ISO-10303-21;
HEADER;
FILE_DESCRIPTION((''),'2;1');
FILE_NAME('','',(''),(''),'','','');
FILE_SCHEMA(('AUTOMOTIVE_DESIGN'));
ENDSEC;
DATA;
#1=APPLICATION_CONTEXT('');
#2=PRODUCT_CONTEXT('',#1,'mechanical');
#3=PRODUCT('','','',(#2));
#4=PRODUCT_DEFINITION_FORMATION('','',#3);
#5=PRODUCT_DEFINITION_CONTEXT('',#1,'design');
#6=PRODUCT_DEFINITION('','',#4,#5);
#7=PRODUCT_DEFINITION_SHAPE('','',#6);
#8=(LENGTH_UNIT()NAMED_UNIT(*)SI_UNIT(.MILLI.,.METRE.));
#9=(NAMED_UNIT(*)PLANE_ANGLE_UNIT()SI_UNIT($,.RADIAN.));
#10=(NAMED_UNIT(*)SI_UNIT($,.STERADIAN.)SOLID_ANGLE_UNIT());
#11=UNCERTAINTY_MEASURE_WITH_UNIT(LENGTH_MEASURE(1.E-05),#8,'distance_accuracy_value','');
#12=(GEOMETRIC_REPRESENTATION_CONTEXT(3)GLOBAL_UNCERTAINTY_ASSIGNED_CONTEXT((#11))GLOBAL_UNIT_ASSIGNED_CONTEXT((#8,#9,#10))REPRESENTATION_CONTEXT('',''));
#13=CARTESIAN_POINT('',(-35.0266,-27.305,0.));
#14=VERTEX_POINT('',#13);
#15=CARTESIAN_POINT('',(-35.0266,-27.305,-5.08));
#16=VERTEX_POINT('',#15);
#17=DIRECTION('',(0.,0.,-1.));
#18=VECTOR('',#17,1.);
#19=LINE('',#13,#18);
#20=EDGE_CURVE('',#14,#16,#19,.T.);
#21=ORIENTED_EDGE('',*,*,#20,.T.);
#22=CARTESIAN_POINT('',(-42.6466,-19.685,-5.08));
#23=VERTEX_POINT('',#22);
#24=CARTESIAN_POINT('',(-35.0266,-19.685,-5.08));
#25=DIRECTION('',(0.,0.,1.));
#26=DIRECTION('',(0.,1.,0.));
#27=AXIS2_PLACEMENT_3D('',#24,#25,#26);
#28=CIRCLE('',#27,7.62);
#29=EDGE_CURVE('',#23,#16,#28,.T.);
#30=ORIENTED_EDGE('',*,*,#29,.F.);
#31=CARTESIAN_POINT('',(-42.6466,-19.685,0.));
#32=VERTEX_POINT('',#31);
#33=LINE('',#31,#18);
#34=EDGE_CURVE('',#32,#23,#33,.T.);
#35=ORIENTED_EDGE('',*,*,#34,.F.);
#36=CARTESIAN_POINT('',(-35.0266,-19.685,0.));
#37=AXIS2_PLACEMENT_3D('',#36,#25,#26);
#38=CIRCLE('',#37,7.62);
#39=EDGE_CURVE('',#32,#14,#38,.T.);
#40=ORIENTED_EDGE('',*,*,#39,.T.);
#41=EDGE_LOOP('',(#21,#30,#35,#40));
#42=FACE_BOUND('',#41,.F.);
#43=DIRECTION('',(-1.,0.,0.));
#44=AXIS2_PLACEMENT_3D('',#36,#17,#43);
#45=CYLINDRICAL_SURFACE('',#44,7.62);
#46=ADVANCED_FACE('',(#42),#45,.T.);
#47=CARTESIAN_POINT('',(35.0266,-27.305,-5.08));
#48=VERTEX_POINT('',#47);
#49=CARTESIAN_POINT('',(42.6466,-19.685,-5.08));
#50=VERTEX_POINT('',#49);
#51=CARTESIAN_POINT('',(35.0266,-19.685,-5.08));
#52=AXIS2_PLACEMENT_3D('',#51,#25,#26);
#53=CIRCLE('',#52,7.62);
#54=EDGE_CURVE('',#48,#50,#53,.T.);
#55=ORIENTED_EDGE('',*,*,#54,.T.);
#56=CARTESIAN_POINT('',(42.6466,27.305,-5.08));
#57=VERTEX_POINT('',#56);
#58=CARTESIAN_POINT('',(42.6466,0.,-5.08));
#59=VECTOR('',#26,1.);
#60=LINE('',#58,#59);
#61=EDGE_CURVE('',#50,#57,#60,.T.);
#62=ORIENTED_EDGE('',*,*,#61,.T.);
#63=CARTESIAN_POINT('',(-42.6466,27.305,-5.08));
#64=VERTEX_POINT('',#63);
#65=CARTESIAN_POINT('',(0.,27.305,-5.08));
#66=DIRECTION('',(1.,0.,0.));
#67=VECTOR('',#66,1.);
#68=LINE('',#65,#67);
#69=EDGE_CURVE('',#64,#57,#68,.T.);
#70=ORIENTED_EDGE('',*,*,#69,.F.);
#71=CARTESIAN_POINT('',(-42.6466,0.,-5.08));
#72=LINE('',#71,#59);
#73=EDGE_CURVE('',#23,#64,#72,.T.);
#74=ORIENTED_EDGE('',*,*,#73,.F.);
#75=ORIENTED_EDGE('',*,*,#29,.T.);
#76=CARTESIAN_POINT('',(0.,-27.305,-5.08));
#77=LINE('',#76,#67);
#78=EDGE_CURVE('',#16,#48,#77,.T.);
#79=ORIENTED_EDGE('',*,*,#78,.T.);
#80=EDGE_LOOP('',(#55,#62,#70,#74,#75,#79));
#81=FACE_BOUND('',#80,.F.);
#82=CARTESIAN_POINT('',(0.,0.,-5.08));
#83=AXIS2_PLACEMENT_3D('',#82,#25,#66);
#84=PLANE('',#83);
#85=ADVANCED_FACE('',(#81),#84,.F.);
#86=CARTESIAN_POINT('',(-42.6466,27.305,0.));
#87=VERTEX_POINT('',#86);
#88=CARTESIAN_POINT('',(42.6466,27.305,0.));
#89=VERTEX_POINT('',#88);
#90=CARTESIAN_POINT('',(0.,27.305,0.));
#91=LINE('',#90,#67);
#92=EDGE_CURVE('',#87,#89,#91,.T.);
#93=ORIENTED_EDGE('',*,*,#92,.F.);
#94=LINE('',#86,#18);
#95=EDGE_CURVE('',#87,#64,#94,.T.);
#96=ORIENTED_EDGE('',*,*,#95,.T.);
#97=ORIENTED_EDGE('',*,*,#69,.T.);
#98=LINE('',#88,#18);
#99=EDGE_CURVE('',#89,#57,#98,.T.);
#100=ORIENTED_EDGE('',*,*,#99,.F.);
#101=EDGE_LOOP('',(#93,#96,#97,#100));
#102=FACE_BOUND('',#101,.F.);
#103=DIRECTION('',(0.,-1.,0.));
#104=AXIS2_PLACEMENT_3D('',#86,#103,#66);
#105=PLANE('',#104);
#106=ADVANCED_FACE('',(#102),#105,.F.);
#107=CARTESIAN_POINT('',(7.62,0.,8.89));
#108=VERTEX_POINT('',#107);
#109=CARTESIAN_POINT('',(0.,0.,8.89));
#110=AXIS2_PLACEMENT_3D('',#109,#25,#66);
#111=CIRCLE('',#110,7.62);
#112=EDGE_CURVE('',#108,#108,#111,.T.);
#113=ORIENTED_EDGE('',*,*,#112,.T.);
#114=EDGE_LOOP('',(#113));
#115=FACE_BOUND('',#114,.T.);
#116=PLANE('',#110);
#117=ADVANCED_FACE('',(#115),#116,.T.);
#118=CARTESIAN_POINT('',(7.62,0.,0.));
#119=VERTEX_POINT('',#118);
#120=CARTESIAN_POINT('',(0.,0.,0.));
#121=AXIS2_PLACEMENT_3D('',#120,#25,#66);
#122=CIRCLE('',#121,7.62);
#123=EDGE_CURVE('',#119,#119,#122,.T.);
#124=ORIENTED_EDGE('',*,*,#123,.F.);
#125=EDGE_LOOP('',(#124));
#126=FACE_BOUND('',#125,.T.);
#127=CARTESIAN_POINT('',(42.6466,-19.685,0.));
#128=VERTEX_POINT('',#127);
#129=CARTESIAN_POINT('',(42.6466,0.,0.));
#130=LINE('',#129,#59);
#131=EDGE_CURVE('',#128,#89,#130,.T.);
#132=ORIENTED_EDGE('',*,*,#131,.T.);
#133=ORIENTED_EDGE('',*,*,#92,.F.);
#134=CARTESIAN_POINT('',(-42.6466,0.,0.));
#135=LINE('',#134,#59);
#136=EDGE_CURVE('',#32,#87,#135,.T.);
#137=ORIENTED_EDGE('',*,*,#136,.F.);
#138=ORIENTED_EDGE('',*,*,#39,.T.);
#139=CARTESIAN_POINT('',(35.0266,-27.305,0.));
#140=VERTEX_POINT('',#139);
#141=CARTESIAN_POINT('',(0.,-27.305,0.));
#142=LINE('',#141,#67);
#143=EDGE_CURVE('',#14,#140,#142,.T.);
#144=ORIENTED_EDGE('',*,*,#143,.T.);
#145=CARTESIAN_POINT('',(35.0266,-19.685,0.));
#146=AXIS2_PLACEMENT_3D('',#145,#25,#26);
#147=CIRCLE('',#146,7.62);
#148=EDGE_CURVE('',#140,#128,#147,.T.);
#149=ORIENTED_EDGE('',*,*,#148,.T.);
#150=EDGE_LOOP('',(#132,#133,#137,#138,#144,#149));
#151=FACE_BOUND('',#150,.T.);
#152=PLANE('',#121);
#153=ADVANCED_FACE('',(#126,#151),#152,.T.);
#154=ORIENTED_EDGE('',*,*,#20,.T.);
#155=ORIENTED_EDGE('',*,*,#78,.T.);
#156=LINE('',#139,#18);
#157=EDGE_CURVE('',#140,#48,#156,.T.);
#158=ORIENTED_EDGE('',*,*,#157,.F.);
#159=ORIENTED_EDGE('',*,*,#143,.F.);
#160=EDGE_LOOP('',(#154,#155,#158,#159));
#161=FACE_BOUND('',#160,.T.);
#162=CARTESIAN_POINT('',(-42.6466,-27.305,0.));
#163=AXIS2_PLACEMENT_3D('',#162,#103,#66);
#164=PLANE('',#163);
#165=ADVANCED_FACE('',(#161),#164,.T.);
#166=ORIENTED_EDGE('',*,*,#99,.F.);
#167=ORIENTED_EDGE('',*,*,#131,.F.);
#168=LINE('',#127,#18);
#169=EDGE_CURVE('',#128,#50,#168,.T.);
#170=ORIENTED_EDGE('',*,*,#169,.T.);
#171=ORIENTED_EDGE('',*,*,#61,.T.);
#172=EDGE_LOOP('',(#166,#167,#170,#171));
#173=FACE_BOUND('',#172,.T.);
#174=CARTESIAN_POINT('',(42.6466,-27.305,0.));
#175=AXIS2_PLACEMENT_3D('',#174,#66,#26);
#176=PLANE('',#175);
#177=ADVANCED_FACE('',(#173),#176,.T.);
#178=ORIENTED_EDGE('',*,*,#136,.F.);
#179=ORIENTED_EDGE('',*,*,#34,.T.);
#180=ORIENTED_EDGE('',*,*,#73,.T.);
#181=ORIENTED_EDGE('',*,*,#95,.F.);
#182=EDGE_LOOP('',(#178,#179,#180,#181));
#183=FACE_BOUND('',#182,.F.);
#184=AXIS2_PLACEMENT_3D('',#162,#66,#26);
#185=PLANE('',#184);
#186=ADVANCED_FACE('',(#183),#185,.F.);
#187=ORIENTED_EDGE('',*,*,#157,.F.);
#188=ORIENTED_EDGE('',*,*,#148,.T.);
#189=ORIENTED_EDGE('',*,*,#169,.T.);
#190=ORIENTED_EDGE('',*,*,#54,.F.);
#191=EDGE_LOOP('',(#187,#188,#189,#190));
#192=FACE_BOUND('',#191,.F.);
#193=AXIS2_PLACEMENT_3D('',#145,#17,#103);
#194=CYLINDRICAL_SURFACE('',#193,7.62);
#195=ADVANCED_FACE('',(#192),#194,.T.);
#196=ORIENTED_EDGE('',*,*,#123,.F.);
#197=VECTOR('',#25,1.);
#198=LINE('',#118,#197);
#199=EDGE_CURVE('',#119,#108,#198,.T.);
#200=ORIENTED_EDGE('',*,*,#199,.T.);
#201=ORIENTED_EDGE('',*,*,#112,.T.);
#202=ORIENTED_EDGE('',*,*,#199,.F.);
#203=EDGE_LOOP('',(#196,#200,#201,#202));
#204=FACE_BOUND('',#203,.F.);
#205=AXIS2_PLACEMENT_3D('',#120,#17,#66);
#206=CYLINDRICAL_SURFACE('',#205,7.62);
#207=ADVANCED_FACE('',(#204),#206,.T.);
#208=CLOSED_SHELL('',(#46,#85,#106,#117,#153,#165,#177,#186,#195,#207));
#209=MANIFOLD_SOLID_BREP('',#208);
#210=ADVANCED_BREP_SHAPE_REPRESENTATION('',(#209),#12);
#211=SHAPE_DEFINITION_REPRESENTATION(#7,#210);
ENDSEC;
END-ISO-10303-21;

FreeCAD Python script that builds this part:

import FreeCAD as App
import Part
import Sketcher
from FreeCAD import Vector
Q = App.Units.Quantity


def edges_at(feature, points):
    """Names of the edges that pass closest to the given points."""
    edges = feature.Shape.Edges
    near = lambda p: min(range(len(edges)), key=lambda i: edges[i].distToShape(Part.Vertex(*p))[0])
    return sorted({f"Edge{near(p) + 1}" for p in points})

doc = App.newDocument("Part")
params = doc.addObject("Spreadsheet::Sheet", "Params")
for row, (alias, value) in enumerate([
    ("sketch1_diameter", "0.6 in"),
    ("pad1_length", "0.35 in"),
    ("sketch2_height", "2.15 in"),
    ("sketch2_width", "3.358 in"),
    ("pad2_length", "0.2 in"),
    ("fillet_radius", "0.3 in"),
], start=1):
    params.set(f"A{row}", alias)
    params.set(f"B{row}", "=" + value)
    params.setAlias(f"B{row}", alias)

body = doc.addObject("PartDesign::Body", "Body")

sketch1 = doc.addObject("Sketcher::SketchObject", "Sketch")
body.addObject(sketch1)
sketch1.AttachmentSupport = (doc.XY_Plane, [""])
sketch1.MapMode = "FlatFace"
sketch1.addGeometry(Part.Circle(Vector(0, 0, 0), Vector(0, 0, 1), 8), False)
sketch1.addConstraint([
    Sketcher.Constraint("Coincident", 0, 3, -1, 1),
    Sketcher.Constraint("Diameter", 0, Q("0.6 in")),
])
sketch1.setExpression("Constraints[1]", "Params.sketch1_diameter")
pad1 = doc.addObject("PartDesign::Pad", "Pad")
body.addObject(pad1)
pad1.Profile = sketch1
pad1.setExpression("Length", "Params.pad1_length")

sketch2 = doc.addObject("Sketcher::SketchObject", "Sketch001")
body.addObject(sketch2)
sketch2.AttachmentSupport = (doc.XY_Plane, [""])
sketch2.MapMode = "FlatFace"
sketch2.addGeometry([
    Part.LineSegment(Vector(-43, 27, 0), Vector(-43, -27, 0)),
    Part.LineSegment(Vector(-43, -27, 0), Vector(43, -27, 0)),
    Part.LineSegment(Vector(43, -27, 0), Vector(43, 27, 0)),
    Part.LineSegment(Vector(43, 27, 0), Vector(-43, 27, 0)),
], False)
sketch2.addConstraint([
    Sketcher.Constraint("Coincident", 0, 2, 1, 1),
    Sketcher.Constraint("Coincident", 1, 2, 2, 1),
    Sketcher.Constraint("Coincident", 2, 2, 3, 1),
    Sketcher.Constraint("Coincident", 3, 2, 0, 1),
    Sketcher.Constraint("Vertical", 0),
    Sketcher.Constraint("Horizontal", 1),
    Sketcher.Constraint("Vertical", 2),
    Sketcher.Constraint("Horizontal", 3),
    Sketcher.Constraint("Symmetric", 0, 2, 2, 2, -1, 1),
    Sketcher.Constraint("DistanceY", 0, 2, 0, 1, Q("2.15 in")),
    Sketcher.Constraint("DistanceX", 1, 1, 1, 2, Q("3.358 in")),
])
sketch2.setExpression("Constraints[9]", "Params.sketch2_height")
sketch2.setExpression("Constraints[10]", "Params.sketch2_width")
pad2 = doc.addObject("PartDesign::Pad", "Pad001")
body.addObject(pad2)
pad2.Profile = sketch2
pad2.setExpression("Length", "Params.pad2_length")
pad2.Reversed = True
doc.recompute()

fillet = doc.addObject("PartDesign::Fillet", "Fillet")
body.addObject(fillet)
fillet.Base = (pad2, edges_at(pad2, [(42.647, -27.305, -2.54), (-42.647, -27.305, -2.54)]))
fillet.setExpression("Radius", "Params.fillet_radius")

doc.recompute()
